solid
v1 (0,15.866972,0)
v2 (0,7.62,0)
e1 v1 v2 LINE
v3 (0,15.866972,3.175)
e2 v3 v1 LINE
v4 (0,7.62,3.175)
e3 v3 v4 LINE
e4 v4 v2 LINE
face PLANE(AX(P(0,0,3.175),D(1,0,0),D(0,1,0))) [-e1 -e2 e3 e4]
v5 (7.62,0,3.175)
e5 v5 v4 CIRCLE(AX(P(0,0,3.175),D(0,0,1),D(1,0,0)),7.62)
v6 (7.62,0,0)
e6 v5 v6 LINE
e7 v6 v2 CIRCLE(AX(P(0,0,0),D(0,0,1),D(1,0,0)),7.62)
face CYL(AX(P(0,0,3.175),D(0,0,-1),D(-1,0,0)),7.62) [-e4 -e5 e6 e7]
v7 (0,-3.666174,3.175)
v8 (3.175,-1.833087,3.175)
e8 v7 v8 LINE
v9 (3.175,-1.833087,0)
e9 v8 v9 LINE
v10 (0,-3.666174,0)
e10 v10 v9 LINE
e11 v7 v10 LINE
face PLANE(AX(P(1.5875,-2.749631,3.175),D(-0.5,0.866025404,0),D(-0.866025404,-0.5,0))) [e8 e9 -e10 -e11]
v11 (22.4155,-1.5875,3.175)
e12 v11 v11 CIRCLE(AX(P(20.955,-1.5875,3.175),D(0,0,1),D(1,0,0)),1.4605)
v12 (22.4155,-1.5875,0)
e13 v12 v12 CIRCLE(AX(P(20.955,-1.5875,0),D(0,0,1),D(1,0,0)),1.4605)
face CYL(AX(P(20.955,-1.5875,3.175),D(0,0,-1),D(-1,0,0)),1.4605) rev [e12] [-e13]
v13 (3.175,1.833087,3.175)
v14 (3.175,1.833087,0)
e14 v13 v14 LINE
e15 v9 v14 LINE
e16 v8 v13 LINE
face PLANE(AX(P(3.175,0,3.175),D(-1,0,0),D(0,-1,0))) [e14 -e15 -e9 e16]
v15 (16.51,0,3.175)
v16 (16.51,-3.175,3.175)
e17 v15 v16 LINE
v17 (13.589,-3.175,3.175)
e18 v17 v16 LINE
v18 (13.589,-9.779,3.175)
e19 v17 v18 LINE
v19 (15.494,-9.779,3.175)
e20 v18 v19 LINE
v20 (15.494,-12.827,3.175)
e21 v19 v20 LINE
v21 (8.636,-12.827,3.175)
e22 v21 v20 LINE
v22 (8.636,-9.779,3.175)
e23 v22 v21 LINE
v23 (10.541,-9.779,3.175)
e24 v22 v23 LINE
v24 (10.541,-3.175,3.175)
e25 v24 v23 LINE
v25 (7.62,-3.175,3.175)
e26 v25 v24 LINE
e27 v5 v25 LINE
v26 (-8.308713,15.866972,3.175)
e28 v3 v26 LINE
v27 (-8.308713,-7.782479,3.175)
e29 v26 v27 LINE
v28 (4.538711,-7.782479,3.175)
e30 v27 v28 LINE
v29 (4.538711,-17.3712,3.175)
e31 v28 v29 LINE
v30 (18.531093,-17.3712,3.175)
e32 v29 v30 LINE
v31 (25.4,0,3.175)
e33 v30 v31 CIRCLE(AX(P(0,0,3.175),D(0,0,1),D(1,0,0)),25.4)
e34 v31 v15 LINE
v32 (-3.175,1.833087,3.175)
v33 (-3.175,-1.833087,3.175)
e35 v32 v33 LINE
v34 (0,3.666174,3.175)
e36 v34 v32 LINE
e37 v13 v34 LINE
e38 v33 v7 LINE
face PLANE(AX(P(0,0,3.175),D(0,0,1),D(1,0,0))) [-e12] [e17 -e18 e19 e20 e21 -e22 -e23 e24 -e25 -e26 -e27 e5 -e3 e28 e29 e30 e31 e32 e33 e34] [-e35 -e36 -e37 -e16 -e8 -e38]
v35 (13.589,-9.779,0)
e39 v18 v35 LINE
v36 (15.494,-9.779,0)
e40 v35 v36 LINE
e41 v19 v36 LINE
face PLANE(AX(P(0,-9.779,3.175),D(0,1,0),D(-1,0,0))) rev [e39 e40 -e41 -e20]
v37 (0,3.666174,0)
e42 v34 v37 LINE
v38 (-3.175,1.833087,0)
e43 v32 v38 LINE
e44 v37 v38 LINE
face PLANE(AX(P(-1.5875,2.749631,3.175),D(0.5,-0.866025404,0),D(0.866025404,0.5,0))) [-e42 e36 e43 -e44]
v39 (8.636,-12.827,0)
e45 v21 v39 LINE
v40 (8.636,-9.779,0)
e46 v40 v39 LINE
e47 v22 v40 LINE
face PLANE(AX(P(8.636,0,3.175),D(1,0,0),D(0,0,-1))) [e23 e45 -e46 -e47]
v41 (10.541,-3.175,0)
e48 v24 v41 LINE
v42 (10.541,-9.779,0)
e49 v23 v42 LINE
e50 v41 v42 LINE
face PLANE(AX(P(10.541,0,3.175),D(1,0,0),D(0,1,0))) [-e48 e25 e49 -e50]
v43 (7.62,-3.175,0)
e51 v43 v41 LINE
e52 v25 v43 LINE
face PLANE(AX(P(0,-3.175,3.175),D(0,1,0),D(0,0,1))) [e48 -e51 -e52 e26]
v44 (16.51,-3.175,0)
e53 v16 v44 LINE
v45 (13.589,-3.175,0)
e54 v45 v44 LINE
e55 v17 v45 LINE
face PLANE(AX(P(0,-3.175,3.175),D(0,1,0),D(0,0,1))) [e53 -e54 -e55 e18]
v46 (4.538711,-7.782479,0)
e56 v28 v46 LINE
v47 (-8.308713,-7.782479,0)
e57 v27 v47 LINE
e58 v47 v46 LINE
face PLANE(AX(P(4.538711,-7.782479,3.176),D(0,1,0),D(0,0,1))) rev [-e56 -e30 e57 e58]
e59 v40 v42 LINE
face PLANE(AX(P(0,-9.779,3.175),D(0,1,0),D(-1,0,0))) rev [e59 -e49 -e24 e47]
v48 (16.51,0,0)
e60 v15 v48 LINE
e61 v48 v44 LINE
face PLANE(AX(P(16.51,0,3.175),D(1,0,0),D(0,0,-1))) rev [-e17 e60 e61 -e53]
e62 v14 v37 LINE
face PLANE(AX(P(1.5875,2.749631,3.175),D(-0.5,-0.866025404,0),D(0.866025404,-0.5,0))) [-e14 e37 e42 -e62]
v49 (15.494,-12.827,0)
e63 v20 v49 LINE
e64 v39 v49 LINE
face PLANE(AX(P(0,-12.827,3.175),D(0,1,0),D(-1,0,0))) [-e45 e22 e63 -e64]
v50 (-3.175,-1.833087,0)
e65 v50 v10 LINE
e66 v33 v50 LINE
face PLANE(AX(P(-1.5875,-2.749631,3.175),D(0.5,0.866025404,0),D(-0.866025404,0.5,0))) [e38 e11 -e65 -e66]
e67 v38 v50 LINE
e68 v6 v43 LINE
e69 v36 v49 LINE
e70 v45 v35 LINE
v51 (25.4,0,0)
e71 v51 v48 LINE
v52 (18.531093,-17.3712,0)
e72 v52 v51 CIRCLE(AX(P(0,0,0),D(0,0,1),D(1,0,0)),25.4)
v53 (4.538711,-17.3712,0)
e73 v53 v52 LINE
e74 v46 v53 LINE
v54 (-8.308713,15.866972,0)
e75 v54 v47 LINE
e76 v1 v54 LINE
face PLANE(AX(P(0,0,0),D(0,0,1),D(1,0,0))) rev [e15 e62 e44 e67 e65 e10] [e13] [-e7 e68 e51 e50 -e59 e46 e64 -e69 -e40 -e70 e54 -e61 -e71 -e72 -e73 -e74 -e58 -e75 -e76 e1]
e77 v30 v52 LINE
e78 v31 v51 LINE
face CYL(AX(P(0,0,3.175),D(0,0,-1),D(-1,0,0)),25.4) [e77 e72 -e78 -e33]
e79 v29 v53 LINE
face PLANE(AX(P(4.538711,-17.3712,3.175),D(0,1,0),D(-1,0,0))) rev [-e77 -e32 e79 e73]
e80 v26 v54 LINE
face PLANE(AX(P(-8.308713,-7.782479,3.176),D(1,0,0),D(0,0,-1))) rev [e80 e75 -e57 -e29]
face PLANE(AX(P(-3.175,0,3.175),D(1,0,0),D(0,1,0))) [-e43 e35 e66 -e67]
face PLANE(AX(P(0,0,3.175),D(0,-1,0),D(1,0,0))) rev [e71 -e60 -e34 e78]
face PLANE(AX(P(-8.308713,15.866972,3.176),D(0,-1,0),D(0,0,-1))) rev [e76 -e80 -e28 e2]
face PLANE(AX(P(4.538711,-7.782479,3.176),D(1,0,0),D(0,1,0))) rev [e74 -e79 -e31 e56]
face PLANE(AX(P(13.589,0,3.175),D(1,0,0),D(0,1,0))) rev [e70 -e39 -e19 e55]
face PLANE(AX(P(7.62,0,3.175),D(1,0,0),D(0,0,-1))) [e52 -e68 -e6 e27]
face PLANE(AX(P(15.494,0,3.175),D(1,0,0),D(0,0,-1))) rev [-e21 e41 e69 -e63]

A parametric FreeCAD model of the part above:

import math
import FreeCAD as App
import Part
import Sketcher

V = App.Vector
Q = App.Units.Quantity

doc = App.newDocument("Part")
body = doc.addObject("PartDesign::Body", "Body")

sketch1 = body.newObject("Sketcher::SketchObject", "Sketch")
sketch1.AttachmentSupport = (doc.getObject("XY_Plane"), [""])
sketch1.MapMode = "FlatFace"
sketch1.addGeometry([
    Part.LineSegment(V(0, 7.6, 0), V(0, 25.4, 0)),
    Part.ArcOfCircle(Part.Circle(V(0, 0, 0), V(0, 0, 1), 25.4), math.radians(90), math.radians(360)),
    Part.LineSegment(V(25.4, 0, 0), V(16.5, 0, 0)),
    Part.LineSegment(V(16.5, 0, 0), V(16.5, -3.2, 0)),
    Part.LineSegment(V(16.5, -3.2, 0), V(13.6, -3.2, 0)),
    Part.LineSegment(V(13.6, -3.2, 0), V(13.6, -9.8, 0)),
    Part.LineSegment(V(13.6, -9.8, 0), V(15.5, -9.8, 0)),
    Part.LineSegment(V(15.5, -9.8, 0), V(15.5, -12.8, 0)),
    Part.LineSegment(V(15.5, -12.8, 0), V(8.6, -12.8, 0)),
    Part.LineSegment(V(8.6, -12.8, 0), V(8.6, -9.8, 0)),
    Part.LineSegment(V(8.6, -9.8, 0), V(10.5, -9.8, 0)),
    Part.LineSegment(V(10.5, -9.8, 0), V(10.5, -3.2, 0)),
    Part.LineSegment(V(10.5, -3.2, 0), V(7.6, -3.2, 0)),
    Part.LineSegment(V(7.6, -3.2, 0), V(7.6, 0, 0)),
    Part.ArcOfCircle(Part.Circle(V(0, 0, 0), V(0, 0, 1), 7.6), math.radians(0), math.radians(90)),
    Part.Circle(V(21, -1.6, 0), V(0, 0, 1), 1.5),
    Part.LineSegment(V(0, 3.7, 0), V(3.2, 1.8, 0)),
    Part.LineSegment(V(3.2, 1.8, 0), V(3.2, -1.8, 0)),
    Part.LineSegment(V(3.2, -1.8, 0), V(0, -3.7, 0)),
    Part.LineSegment(V(0, -3.7, 0), V(-3.2, -1.8, 0)),
    Part.LineSegment(V(-3.2, -1.8, 0), V(-3.2, 1.8, 0)),
    Part.LineSegment(V(-3.2, 1.8, 0), V(0, 3.7, 0)),
], False)
sketch1.addConstraint([
    Sketcher.Constraint("Coincident", 0, 2, 1, 1),
    Sketcher.Constraint("Coincident", 1, 2, 2, 1),
    Sketcher.Constraint("Coincident", 2, 2, 3, 1),
    Sketcher.Constraint("Coincident", 3, 2, 4, 1),
    Sketcher.Constraint("Coincident", 4, 2, 5, 1),
    Sketcher.Constraint("Coincident", 5, 2, 6, 1),
    Sketcher.Constraint("Coincident", 6, 2, 7, 1),
    Sketcher.Constraint("Coincident", 7, 2, 8, 1),
    Sketcher.Constraint("Coincident", 8, 2, 9, 1),
    Sketcher.Constraint("Coincident", 9, 2, 10, 1),
    Sketcher.Constraint("Coincident", 10, 2, 11, 1),
    Sketcher.Constraint("Coincident", 11, 2, 12, 1),
    Sketcher.Constraint("Coincident", 12, 2, 13, 1),
    Sketcher.Constraint("Tangent", 13, 2, 14, 1),
    Sketcher.Constraint("Coincident", 14, 2, 0, 1),
    Sketcher.Constraint("Coincident", 16, 2, 17, 1),
    Sketcher.Constraint("Coincident", 17, 2, 18, 1),
    Sketcher.Constraint("Coincident", 18, 2, 19, 1),
    Sketcher.Constraint("Coincident", 19, 2, 20, 1),
    Sketcher.Constraint("Coincident", 20, 2, 21, 1),
    Sketcher.Constraint("Coincident", 21, 2, 16, 1),
    Sketcher.Constraint("Vertical", 0),
    Sketcher.Constraint("Horizontal", 2),
    Sketcher.Constraint("Vertical", 3),
    Sketcher.Constraint("Horizontal", 4),
    Sketcher.Constraint("Vertical", 5),
    Sketcher.Constraint("Horizontal", 6),
    Sketcher.Constraint("Vertical", 7),
    Sketcher.Constraint("Horizontal", 8),
    Sketcher.Constraint("Vertical", 9),
    Sketcher.Constraint("Horizontal", 10),
    Sketcher.Constraint("Vertical", 11),
    Sketcher.Constraint("Horizontal", 12),
    Sketcher.Constraint("Vertical", 13),
    Sketcher.Constraint("Vertical", 17),
    Sketcher.Constraint("Vertical", 20),
    Sketcher.Constraint("Coincident", 1, 3, -1, 1),
    Sketcher.Constraint("Coincident", 14, 3, -1, 1),
    Sketcher.Constraint("Symmetric", 16, 2, 19, 2, -1, 1),
    Sketcher.Constraint("Symmetric", 18, 2, 21, 2, -1, 1),
    Sketcher.Constraint("PointOnObject", 0, 2, -2),
    Sketcher.Constraint("PointOnObject", 1, 2, -1),
    Sketcher.Constraint("PointOnObject", 18, 2, -2),
    Sketcher.Constraint("Parallel", 18, 21),
    Sketcher.Constraint("Horizontal", 6, 2, 9, 2),
    Sketcher.Constraint("Horizontal", 4, 2, 11, 2),
    Sketcher.Constraint("Horizontal", 17, 2, 19, 2),
    Sketcher.Constraint("Equal", 6, 10),
    Sketcher.Constraint("Equal", 4, 12),
    Sketcher.Constraint("Radius", 1, Q("1 in")),
    Sketcher.Constraint("Radius", 14, Q("0.3 in")),
    Sketcher.Constraint("Diameter", 15, Q("0.115 in")),
    Sketcher.Constraint("Angle", 16, Q("-30 deg")),
    Sketcher.Constraint("DistanceX", 2, 2, 2, 1, Q("0.35 in")),
    Sketcher.Constraint("DistanceX", 8, 2, 8, 1, Q("0.27 in")),
    Sketcher.Constraint("DistanceY", 5, 2, 5, 1, Q("0.26 in")),
    Sketcher.Constraint("DistanceY", 7, 2, 7, 1, Q("0.12 in")),
    Sketcher.Constraint("DistanceX", 4, 2, 4, 1, Q("0.115 in")),
    Sketcher.Constraint("DistanceY", 3, 2, 3, 1, Q("0.125 in")),
    Sketcher.Constraint("DistanceX", 4, 2, 15, 3, Q("0.29 in")),
    Sketcher.Constraint("DistanceX", 19, 2, 17, 2, Q("0.25 in")),
    Sketcher.Constraint("DistanceY", 15, 3, -1, 1, Q("0.0625 in")),
    Sketcher.Constraint("DistanceY", 17, 2, 17, 1, Q("3.666174 mm")),
])
pad1 = body.newObject("PartDesign::Pad", "Pad")
pad1.Profile = sketch1
pad1.Length = Q("0.125 in")

sketch2 = body.newObject("Sketcher::SketchObject", "Sketch001")
sketch2.AttachmentSupport = (doc.getObject("XY_Plane"), [""])
sketch2.MapMode = "FlatFace"
sketch2.AttachmentOffset = App.Placement(V(0, 0, -3.68 * 25.4), App.Rotation())
sketch2.addGeometry([
    Part.LineSegment(V(-28, -8, 0), V(5, -8, 0)),
    Part.LineSegment(V(5, -8, 0), V(5, -36, 0)),
    Part.LineSegment(V(5, -36, 0), V(-16, -38, 0)),
    Part.LineSegment(V(-16, -38, 0), V(-28, -8, 0)),
], False)
sketch2.addConstraint([
    Sketcher.Constraint("Coincident", 0, 2, 1, 1),
    Sketcher.Constraint("Coincident", 1, 2, 2, 1),
    Sketcher.Constraint("Coincident", 2, 2, 3, 1),
    Sketcher.Constraint("Coincident", 3, 2, 0, 1),
    Sketcher.Constraint("Horizontal", 0),
    Sketcher.Constraint("Vertical", 1),
    Sketcher.Constraint("Angle", 3, Q("111.159982 deg")),
    Sketcher.Constraint("DistanceX", 0, 1, 0, 2, Q("32.37315 mm")),
    Sketcher.Constraint("DistanceY", 1, 2, 1, 1, Q("28.64494 mm")),
    Sketcher.Constraint("Distance", 2, Q("20.69786 mm")),
    Sketcher.Constraint("DistanceX", -1, 1, 0, 2, Q("4.538711 mm")),
    Sketcher.Constraint("DistanceY", 0, 2, -1, 1, Q("7.782479 mm")),
])
pocket1 = body.newObject("PartDesign::Pocket", "Pocket")
pocket1.Profile = sketch2
pocket1.Length = Q("3.805 in")
pocket1.Reversed = True

sketch3 = body.newObject("Sketcher::SketchObject", "Sketch002")
sketch3.AttachmentSupport = (doc.getObject("XY_Plane"), [""])
sketch3.MapMode = "FlatFace"
sketch3.AttachmentOffset = App.Placement(V(0, 0, -3.68 * 25.4), App.Rotation())
sketch3.addGeometry([
    Part.LineSegment(V(-8, 16, 0), V(-8, -8, 0)),
    Part.LineSegment(V(-8, -8, 0), V(-20, -19, 0)),
    Part.LineSegment(V(-20, -19, 0), V(-54, 11, 0)),
    Part.LineSegment(V(-54, 11, 0), V(0, 32, 0)),
    Part.LineSegment(V(0, 32, 0), V(0, 16, 0)),
    Part.LineSegment(V(0, 16, 0), V(-8, 16, 0)),
], False)
sketch3.addConstraint([
    Sketcher.Constraint("Coincident", 0, 2, 1, 1),
    Sketcher.Constraint("Coincident", 1, 2, 2, 1),
    Sketcher.Constraint("Coincident", 2, 2, 3, 1),
    Sketcher.Constraint("Coincident", 3, 2, 4, 1),
    Sketcher.Constraint("Coincident", 4, 2, 5, 1),
    Sketcher.Constraint("Coincident", 5, 2, 0, 1),
    Sketcher.Constraint("Vertical", 0),
    Sketcher.Constraint("Vertical", 4),
    Sketcher.Constraint("Horizontal", 5),
    Sketcher.Constraint("PointOnObject", 3, 2, -2),
    Sketcher.Constraint("DistanceY", -1, 1, 3, 2, Q("1.2681999 in")),
    Sketcher.Constraint("DistanceY", 0, 2, 0, 1, Q("23.649451 mm")),
    Sketcher.Constraint("Distance", 1, Q("16.094959 mm")),
    Sketcher.Constraint("DistanceX", 5, 2, 5, 1, Q("8.308713 mm")),
    Sketcher.Constraint("DistanceY", 4, 2, 4, 1, Q("16.345305 mm")),
    Sketcher.Constraint("DistanceX", 1, 2, -1, 1, Q("19.587789 mm")),
    Sketcher.Constraint("DistanceY", 1, 2, 2, 2, Q("30.684839 mm")),
    Sketcher.Constraint("Distance", 2, Q("46.036326 mm")),
])
pocket2 = body.newObject("PartDesign::Pocket", "Pocket001")
pocket2.Profile = sketch3
pocket2.Length = Q("3.805 in")
pocket2.Reversed = True

sketch4 = body.newObject("Sketcher::SketchObject", "Sketch003")
sketch4.AttachmentSupport = (doc.getObject("XY_Plane"), [""])
sketch4.MapMode = "FlatFace"
sketch4.addGeometry([
    Part.LineSegment(V(30, -17, 0), V(30, -25, 0)),
    Part.LineSegment(V(30, -25, 0), V(5, -25, 0)),
    Part.LineSegment(V(5, -25, 0), V(5, -17, 0)),
    Part.LineSegment(V(5, -17, 0), V(30, -17, 0)),
], False)
sketch4.addConstraint([
    Sketcher.Constraint("Coincident", 0, 2, 1, 1),
    Sketcher.Constraint("Coincident", 1, 2, 2, 1),
    Sketcher.Constraint("Coincident", 2, 2, 3, 1),
    Sketcher.Constraint("Coincident", 3, 2, 0, 1),
    Sketcher.Constraint("Vertical", 0),
    Sketcher.Constraint("Horizontal", 1),
    Sketcher.Constraint("Vertical", 2),
    Sketcher.Constraint("Horizontal", 3),
    Sketcher.Constraint("DistanceX", 1, 2, 1, 1, Q("1 in")),
    Sketcher.Constraint("DistanceY", 0, 2, 0, 1, Q("0.3 in")),
    Sketcher.Constraint("DistanceY", 0, 2, -1, 1, Q("24.9912 mm")),
    Sketcher.Constraint("DistanceX", -1, 1, 0, 2, Q("29.938711 mm")),
])
pocket3 = body.newObject("PartDesign::Pocket", "Pocket002")
pocket3.Profile = sketch4
pocket3.Type = "ThroughAll"
pocket3.Reversed = True

doc.recompute()
